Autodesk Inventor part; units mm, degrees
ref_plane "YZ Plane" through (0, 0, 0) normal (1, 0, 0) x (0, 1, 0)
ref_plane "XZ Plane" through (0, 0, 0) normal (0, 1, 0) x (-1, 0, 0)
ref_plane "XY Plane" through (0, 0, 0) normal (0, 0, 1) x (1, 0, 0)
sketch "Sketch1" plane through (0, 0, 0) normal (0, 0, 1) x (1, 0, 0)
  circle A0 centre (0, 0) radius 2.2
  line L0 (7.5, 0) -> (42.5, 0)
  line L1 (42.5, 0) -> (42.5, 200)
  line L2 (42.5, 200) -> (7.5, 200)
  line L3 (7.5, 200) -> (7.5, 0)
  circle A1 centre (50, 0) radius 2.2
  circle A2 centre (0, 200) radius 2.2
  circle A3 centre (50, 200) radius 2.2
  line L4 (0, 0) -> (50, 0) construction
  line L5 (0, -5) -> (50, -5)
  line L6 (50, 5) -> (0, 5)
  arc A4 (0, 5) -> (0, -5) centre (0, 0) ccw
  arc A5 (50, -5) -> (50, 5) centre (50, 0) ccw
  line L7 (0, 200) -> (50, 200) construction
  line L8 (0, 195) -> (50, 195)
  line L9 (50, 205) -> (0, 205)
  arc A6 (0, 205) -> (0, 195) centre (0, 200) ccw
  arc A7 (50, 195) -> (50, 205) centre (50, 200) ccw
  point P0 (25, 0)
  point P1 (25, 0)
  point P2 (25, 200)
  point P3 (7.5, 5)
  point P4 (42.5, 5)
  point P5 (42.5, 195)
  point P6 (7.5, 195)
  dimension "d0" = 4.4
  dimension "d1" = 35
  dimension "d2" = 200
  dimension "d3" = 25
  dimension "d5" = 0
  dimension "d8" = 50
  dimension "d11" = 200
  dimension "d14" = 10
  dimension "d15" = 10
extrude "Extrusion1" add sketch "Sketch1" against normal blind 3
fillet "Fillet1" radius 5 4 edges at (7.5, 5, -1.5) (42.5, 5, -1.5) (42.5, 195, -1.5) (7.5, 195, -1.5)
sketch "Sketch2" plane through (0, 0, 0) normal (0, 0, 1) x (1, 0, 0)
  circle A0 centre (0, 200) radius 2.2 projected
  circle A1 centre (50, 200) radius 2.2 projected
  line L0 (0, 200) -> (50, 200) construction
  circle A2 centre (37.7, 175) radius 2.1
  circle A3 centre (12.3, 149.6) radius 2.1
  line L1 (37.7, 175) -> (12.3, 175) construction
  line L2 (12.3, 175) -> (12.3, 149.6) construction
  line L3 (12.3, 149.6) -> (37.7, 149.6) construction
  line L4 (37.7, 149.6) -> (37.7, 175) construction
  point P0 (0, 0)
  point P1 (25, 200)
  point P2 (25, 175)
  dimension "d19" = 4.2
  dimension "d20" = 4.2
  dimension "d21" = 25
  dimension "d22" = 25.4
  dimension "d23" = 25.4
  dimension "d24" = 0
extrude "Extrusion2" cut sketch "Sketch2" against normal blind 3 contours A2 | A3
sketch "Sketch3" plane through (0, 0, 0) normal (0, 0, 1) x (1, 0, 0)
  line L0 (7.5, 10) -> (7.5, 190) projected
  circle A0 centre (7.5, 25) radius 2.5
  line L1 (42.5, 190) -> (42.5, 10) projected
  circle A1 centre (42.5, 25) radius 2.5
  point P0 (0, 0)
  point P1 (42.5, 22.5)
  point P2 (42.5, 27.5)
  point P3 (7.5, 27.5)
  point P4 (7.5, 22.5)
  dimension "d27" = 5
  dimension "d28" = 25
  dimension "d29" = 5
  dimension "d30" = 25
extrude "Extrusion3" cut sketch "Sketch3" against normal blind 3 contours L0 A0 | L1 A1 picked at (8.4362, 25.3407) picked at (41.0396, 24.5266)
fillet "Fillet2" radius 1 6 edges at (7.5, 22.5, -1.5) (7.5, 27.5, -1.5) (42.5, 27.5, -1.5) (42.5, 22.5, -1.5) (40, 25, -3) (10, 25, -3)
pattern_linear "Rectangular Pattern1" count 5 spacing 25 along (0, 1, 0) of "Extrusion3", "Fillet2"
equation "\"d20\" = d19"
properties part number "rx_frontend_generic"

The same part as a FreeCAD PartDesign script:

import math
import FreeCAD as App
import Part
import Sketcher
from FreeCAD import Vector
Q = App.Units.Quantity


def edges_at(feature, points):
    """Names of the edges that pass closest to the given points."""
    edges = feature.Shape.Edges
    near = lambda p: min(range(len(edges)), key=lambda i: edges[i].distToShape(Part.Vertex(*p))[0])
    return sorted({f"Edge{near(p) + 1}" for p in points})

doc = App.newDocument("Part")
body = doc.addObject("PartDesign::Body", "Body")

# Sketch on XY plane
sketch1 = doc.addObject("Sketcher::SketchObject", "Sketch")
body.addObject(sketch1)
sketch1.AttachmentSupport = (doc.XY_Plane, [""])
sketch1.MapMode = "FlatFace"
sketch1.addGeometry([
    Part.LineSegment(Vector(50, 5, 0), Vector(42.5, 5, 0)),  # 0
    Part.LineSegment(Vector(42.5, 5, 0), Vector(42.5, 195, 0)),  # 1
    Part.LineSegment(Vector(42.5, 195, 0), Vector(50, 195, 0)),  # 2
    Part.ArcOfCircle(Part.Circle(Vector(50, 200, 0), Vector(0, 0, 1), 5), math.radians(-90), math.radians(90)),  # 3
    Part.LineSegment(Vector(50, 205, 0), Vector(0, 205, 0)),  # 4
    Part.ArcOfCircle(Part.Circle(Vector(0, 200, 0), Vector(0, 0, 1), 5), math.radians(90), math.radians(270)),  # 5
    Part.LineSegment(Vector(0, 195, 0), Vector(7.5, 195, 0)),  # 6
    Part.LineSegment(Vector(7.5, 195, 0), Vector(7.5, 5, 0)),  # 7
    Part.LineSegment(Vector(7.5, 5, 0), Vector(0, 5, 0)),  # 8
    Part.ArcOfCircle(Part.Circle(Vector(0, 0, 0), Vector(0, 0, 1), 5), math.radians(90), math.radians(270)),  # 9
    Part.LineSegment(Vector(0, -5, 0), Vector(50, -5, 0)),  # 10
    Part.ArcOfCircle(Part.Circle(Vector(50, 0, 0), Vector(0, 0, 1), 5), math.radians(-90), math.radians(90)),  # 11
    Part.Circle(Vector(50, 0, 0), Vector(0, 0, 1), 2.2),  # 12
    Part.Circle(Vector(0, 0, 0), Vector(0, 0, 1), 2.2),  # 13
    Part.Circle(Vector(50, 200, 0), Vector(0, 0, 1), 2.2),  # 14
    Part.Circle(Vector(0, 200, 0), Vector(0, 0, 1), 2.2),  # 15
], False)
sketch1.addConstraint([
    Sketcher.Constraint("Coincident", 0, 2, 1, 1),
    Sketcher.Constraint("Coincident", 1, 2, 2, 1),
    Sketcher.Constraint("Tangent", 2, 2, 3, 1),
    Sketcher.Constraint("Tangent", 3, 2, 4, 1),
    Sketcher.Constraint("Tangent", 4, 2, 5, 1),
    Sketcher.Constraint("Tangent", 5, 2, 6, 1),
    Sketcher.Constraint("Coincident", 6, 2, 7, 1),
    Sketcher.Constraint("Coincident", 7, 2, 8, 1),
    Sketcher.Constraint("Tangent", 8, 2, 9, 1),
    Sketcher.Constraint("Tangent", 9, 2, 10, 1),
    Sketcher.Constraint("Tangent", 10, 2, 11, 1),
    Sketcher.Constraint("Tangent", 11, 2, 0, 1),
    Sketcher.Constraint("Horizontal", 0),
    Sketcher.Constraint("Vertical", 1),
    Sketcher.Constraint("Horizontal", 2),
    Sketcher.Constraint("Horizontal", 4),
    Sketcher.Constraint("Horizontal", 6),
    Sketcher.Constraint("Vertical", 7),
    Sketcher.Constraint("Horizontal", 8),
    Sketcher.Constraint("Horizontal", 10),
    Sketcher.Constraint("Coincident", 9, 3, -1, 1),
    Sketcher.Constraint("Coincident", 13, 3, -1, 1),
    Sketcher.Constraint("Coincident", 12, 3, 11, 3),
    Sketcher.Constraint("Coincident", 14, 3, 3, 3),
    Sketcher.Constraint("Coincident", 15, 3, 5, 3),
    Sketcher.Constraint("Equal", 3, 5),
    Sketcher.Constraint("Equal", 5, 9),
    Sketcher.Constraint("Equal", 9, 11),
    Sketcher.Constraint("Equal", 12, 13),
    Sketcher.Constraint("Equal", 13, 14),
    Sketcher.Constraint("Equal", 14, 15),
    Sketcher.Constraint("PointOnObject", 5, 3, -2),
    Sketcher.Constraint("Vertical", 3, 3, 11, 3),
    Sketcher.Constraint("Equal", 2, 6),
    Sketcher.Constraint("Radius", 3, Q("5 mm")),
    Sketcher.Constraint("Diameter", 12, Q("4.4 mm")),
    Sketcher.Constraint("DistanceX", 4, 2, 4, 1, Q("50 mm")),
    Sketcher.Constraint("DistanceY", -1, 1, 3, 3, Q("200 mm")),
    Sketcher.Constraint("DistanceX", 6, 2, 1, 2, Q("35 mm")),
])
pad1 = doc.addObject("PartDesign::Pad", "Pad")
body.addObject(pad1)
pad1.Profile = sketch1
pad1.Length = 3
pad1.Reversed = True
doc.recompute()

fillet = doc.addObject("PartDesign::Fillet", "Fillet")
body.addObject(fillet)
fillet.Base = (pad1, edges_at(pad1, [
    (7.5, 5, -1.5),
    (42.5, 5, -1.5),
    (42.5, 195, -1.5),
    (7.5, 195, -1.5),
]))
fillet.Radius = 5

# Sketch on XY plane
sketch2 = doc.addObject("Sketcher::SketchObject", "Sketch001")
body.addObject(sketch2)
sketch2.AttachmentSupport = (doc.XY_Plane, [""])
sketch2.MapMode = "FlatFace"
sketch2.addGeometry([
    Part.Circle(Vector(37.7, 175, 0), Vector(0, 0, 1), 2.1),
    Part.Circle(Vector(12.3, 149.6, 0), Vector(0, 0, 1), 2.1),
], False)
sketch2.addConstraint([
    Sketcher.Constraint("Equal", 0, 1),
    Sketcher.Constraint("Diameter", 0, Q("4.2 mm")),
    Sketcher.Constraint("DistanceX", 1, 3, 0, 3, Q("25.4 mm")),
    Sketcher.Constraint("DistanceY", 1, 3, 0, 3, Q("25.4 mm")),
    Sketcher.Constraint("DistanceY", -1, 1, 0, 3, Q("175 mm")),
    Sketcher.Constraint("DistanceX", -1, 1, 0, 3, Q("37.7 mm")),
])
pocket1 = doc.addObject("PartDesign::Pocket", "Pocket")
body.addObject(pocket1)
pocket1.Profile = sketch2
pocket1.Length = 3

# Sketch on XY plane
sketch3 = doc.addObject("Sketcher::SketchObject", "Sketch002")
body.addObject(sketch3)
sketch3.AttachmentSupport = (doc.XY_Plane, [""])
sketch3.MapMode = "FlatFace"
sketch3.addGeometry([
    Part.LineSegment(Vector(7.5, 27.5, 0), Vector(7.5, 22.5, 0)),
    Part.ArcOfCircle(Part.Circle(Vector(7.5, 25, 0), Vector(0, 0, 1), 2.5), math.radians(-90), math.radians(90)),
    Part.LineSegment(Vector(42.5, 22.5, 0), Vector(42.5, 27.5, 0)),
    Part.ArcOfCircle(Part.Circle(Vector(42.5, 25, 0), Vector(0, 0, 1), 2.5), math.radians(90), math.radians(270)),
], False)
sketch3.addConstraint([
    Sketcher.Constraint("Coincident", 0, 1, 1, 2),
    Sketcher.Constraint("Coincident", 1, 1, 0, 2),
    Sketcher.Constraint("Coincident", 2, 1, 3, 2),
    Sketcher.Constraint("Coincident", 3, 1, 2, 2),
    Sketcher.Constraint("Vertical", 0),
    Sketcher.Constraint("Vertical", 2),
    Sketcher.Constraint("Equal", 1, 3),
    Sketcher.Constraint("Horizontal", 1, 3, 3, 3),
    Sketcher.Constraint("Vertical", 1, 3, 0, 1),
    Sketcher.Constraint("Vertical", 3, 3, 2, 1),
    Sketcher.Constraint("Radius", 1, Q("2.5 mm")),
    Sketcher.Constraint("DistanceY", -1, 1, 1, 3, Q("25 mm")),
    Sketcher.Constraint("DistanceX", 1, 3, 3, 3, Q("35 mm")),
    Sketcher.Constraint("DistanceX", -1, 1, 1, 3, Q("7.5 mm")),
])
pocket2 = doc.addObject("PartDesign::Pocket", "Pocket001")
body.addObject(pocket2)
pocket2.Profile = sketch3
pocket2.Length = 3
doc.recompute()

fillet2 = doc.addObject("PartDesign::Fillet", "Fillet001")
body.addObject(fillet2)
fillet2.Base = (pocket2, edges_at(pocket2, [
    (7.5, 22.5, -1.5),
    (7.5, 27.5, -1.5),
    (42.5, 27.5, -1.5),
    (42.5, 22.5, -1.5),
    (40, 25, -3),
    (10, 25, -3),
]))
fillet2.Radius = 1
doc.recompute()

linearpattern = doc.addObject("PartDesign::LinearPattern", "LinearPattern")
body.addObject(linearpattern)
linearpattern.Originals = [pocket2, fillet2]
linearpattern.Direction = (doc.Y_Axis, [""])
linearpattern.Mode = "offset"
linearpattern.Offset = 25
linearpattern.Occurrences = 5
body.Tip = linearpattern

doc.recompute()
